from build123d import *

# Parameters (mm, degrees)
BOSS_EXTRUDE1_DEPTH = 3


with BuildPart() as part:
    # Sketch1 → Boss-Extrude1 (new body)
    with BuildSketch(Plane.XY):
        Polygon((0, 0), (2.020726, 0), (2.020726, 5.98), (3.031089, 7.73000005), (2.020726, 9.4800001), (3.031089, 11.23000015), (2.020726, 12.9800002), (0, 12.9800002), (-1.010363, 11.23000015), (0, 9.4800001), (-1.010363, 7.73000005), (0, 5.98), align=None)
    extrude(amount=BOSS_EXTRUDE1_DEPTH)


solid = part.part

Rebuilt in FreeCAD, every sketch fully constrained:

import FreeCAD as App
import Part
import Sketcher
Q = App.Units.Quantity

doc = App.newDocument("Part")
body = doc.addObject("PartDesign::Body", "Body")

sketch1 = body.newObject("Sketcher::SketchObject", "Sketch")
sketch1.AttachmentSupport = (doc.getObject("XY_Plane"), [""])
sketch1.MapMode = "FlatFace"
sketch1.addGeometry(Part.LineSegment(App.Vector(0, 0, 0), App.Vector(2, 0, 0)), False)
sketch1.addGeometry(Part.LineSegment(App.Vector(2, 0, 0), App.Vector(2, 6, 0)), False)
sketch1.addGeometry(Part.LineSegment(App.Vector(2, 6, 0), App.Vector(3, 7.7, 0)), False)
sketch1.addGeometry(Part.LineSegment(App.Vector(3, 7.7, 0), App.Vector(2, 9.5, 0)), False)
sketch1.addGeometry(Part.LineSegment(App.Vector(2, 9.5, 0), App.Vector(3, 11.2, 0)), False)
sketch1.addGeometry(Part.LineSegment(App.Vector(3, 11.2, 0), App.Vector(2, 13, 0)), False)
sketch1.addGeometry(Part.LineSegment(App.Vector(2, 13, 0), App.Vector(0, 13, 0)), False)
sketch1.addGeometry(Part.LineSegment(App.Vector(0, 13, 0), App.Vector(-1, 11.2, 0)), False)
sketch1.addGeometry(Part.LineSegment(App.Vector(-1, 11.2, 0), App.Vector(0, 9.5, 0)), False)
sketch1.addGeometry(Part.LineSegment(App.Vector(0, 9.5, 0), App.Vector(-1, 7.7, 0)), False)
sketch1.addGeometry(Part.LineSegment(App.Vector(-1, 7.7, 0), App.Vector(0, 6, 0)), False)
sketch1.addGeometry(Part.LineSegment(App.Vector(0, 6, 0), App.Vector(0, 0, 0)), False)
sketch1.addConstraint(Sketcher.Constraint("Coincident", 0, 2, 1, 1))
sketch1.addConstraint(Sketcher.Constraint("Coincident", 1, 2, 2, 1))
sketch1.addConstraint(Sketcher.Constraint("Coincident", 2, 2, 3, 1))
sketch1.addConstraint(Sketcher.Constraint("Coincident", 3, 2, 4, 1))
sketch1.addConstraint(Sketcher.Constraint("Coincident", 4, 2, 5, 1))
sketch1.addConstraint(Sketcher.Constraint("Coincident", 5, 2, 6, 1))
sketch1.addConstraint(Sketcher.Constraint("Coincident", 6, 2, 7, 1))
sketch1.addConstraint(Sketcher.Constraint("Coincident", 7, 2, 8, 1))
sketch1.addConstraint(Sketcher.Constraint("Coincident", 8, 2, 9, 1))
sketch1.addConstraint(Sketcher.Constraint("Coincident", 9, 2, 10, 1))
sketch1.addConstraint(Sketcher.Constraint("Coincident", 10, 2, 11, 1))
sketch1.addConstraint(Sketcher.Constraint("Coincident", 11, 2, 0, 1))
sketch1.addConstraint(Sketcher.Constraint("Horizontal", 0))
sketch1.addConstraint(Sketcher.Constraint("Vertical", 1))
sketch1.addConstraint(Sketcher.Constraint("Horizontal", 6))
sketch1.addConstraint(Sketcher.Constraint("Vertical", 11))
sketch1.addConstraint(Sketcher.Constraint("Coincident", 11, 2, -1, 1))
sketch1.addConstraint(Sketcher.Constraint("PointOnObject", 6, 2, -2))
sketch1.addConstraint(Sketcher.Constraint("PointOnObject", 8, 2, -2))
sketch1.addConstraint(Sketcher.Constraint("Parallel", 2, 4))
sketch1.addConstraint(Sketcher.Constraint("Parallel", 3, 5))
sketch1.addConstraint(Sketcher.Constraint("Parallel", 4, 7))
sketch1.addConstraint(Sketcher.Constraint("Parallel", 5, 8))
sketch1.addConstraint(Sketcher.Constraint("Parallel", 7, 9))
sketch1.addConstraint(Sketcher.Constraint("Parallel", 8, 10))
sketch1.addConstraint(Sketcher.Constraint("Horizontal", 4, 2, 7, 2))
sketch1.addConstraint(Sketcher.Constraint("Horizontal", 3, 2, 8, 2))
sketch1.addConstraint(Sketcher.Constraint("Horizontal", 2, 2, 9, 2))
sketch1.addConstraint(Sketcher.Constraint("Horizontal", 1, 2, 10, 2))
sketch1.addConstraint(Sketcher.Constraint("Vertical", 1, 2, 3, 2))
sketch1.addConstraint(Sketcher.Constraint("Vertical", 2, 2, 4, 2))
sketch1.addConstraint(Sketcher.Constraint("Angle", 2, Q("60 deg")))
sketch1.addConstraint(Sketcher.Constraint("DistanceY", 1, 2, 5, 2, Q("7 mm")))
sketch1.addConstraint(Sketcher.Constraint("DistanceY", 1, 1, 1, 2, Q("5.98 mm")))
sketch1.addConstraint(Sketcher.Constraint("DistanceX", 0, 1, 0, 2, Q("2.020726 mm")))
pad1 = body.newObject("PartDesign::Pad", "Pad")
pad1.Profile = sketch1
pad1.Length = 3

doc.recompute()
